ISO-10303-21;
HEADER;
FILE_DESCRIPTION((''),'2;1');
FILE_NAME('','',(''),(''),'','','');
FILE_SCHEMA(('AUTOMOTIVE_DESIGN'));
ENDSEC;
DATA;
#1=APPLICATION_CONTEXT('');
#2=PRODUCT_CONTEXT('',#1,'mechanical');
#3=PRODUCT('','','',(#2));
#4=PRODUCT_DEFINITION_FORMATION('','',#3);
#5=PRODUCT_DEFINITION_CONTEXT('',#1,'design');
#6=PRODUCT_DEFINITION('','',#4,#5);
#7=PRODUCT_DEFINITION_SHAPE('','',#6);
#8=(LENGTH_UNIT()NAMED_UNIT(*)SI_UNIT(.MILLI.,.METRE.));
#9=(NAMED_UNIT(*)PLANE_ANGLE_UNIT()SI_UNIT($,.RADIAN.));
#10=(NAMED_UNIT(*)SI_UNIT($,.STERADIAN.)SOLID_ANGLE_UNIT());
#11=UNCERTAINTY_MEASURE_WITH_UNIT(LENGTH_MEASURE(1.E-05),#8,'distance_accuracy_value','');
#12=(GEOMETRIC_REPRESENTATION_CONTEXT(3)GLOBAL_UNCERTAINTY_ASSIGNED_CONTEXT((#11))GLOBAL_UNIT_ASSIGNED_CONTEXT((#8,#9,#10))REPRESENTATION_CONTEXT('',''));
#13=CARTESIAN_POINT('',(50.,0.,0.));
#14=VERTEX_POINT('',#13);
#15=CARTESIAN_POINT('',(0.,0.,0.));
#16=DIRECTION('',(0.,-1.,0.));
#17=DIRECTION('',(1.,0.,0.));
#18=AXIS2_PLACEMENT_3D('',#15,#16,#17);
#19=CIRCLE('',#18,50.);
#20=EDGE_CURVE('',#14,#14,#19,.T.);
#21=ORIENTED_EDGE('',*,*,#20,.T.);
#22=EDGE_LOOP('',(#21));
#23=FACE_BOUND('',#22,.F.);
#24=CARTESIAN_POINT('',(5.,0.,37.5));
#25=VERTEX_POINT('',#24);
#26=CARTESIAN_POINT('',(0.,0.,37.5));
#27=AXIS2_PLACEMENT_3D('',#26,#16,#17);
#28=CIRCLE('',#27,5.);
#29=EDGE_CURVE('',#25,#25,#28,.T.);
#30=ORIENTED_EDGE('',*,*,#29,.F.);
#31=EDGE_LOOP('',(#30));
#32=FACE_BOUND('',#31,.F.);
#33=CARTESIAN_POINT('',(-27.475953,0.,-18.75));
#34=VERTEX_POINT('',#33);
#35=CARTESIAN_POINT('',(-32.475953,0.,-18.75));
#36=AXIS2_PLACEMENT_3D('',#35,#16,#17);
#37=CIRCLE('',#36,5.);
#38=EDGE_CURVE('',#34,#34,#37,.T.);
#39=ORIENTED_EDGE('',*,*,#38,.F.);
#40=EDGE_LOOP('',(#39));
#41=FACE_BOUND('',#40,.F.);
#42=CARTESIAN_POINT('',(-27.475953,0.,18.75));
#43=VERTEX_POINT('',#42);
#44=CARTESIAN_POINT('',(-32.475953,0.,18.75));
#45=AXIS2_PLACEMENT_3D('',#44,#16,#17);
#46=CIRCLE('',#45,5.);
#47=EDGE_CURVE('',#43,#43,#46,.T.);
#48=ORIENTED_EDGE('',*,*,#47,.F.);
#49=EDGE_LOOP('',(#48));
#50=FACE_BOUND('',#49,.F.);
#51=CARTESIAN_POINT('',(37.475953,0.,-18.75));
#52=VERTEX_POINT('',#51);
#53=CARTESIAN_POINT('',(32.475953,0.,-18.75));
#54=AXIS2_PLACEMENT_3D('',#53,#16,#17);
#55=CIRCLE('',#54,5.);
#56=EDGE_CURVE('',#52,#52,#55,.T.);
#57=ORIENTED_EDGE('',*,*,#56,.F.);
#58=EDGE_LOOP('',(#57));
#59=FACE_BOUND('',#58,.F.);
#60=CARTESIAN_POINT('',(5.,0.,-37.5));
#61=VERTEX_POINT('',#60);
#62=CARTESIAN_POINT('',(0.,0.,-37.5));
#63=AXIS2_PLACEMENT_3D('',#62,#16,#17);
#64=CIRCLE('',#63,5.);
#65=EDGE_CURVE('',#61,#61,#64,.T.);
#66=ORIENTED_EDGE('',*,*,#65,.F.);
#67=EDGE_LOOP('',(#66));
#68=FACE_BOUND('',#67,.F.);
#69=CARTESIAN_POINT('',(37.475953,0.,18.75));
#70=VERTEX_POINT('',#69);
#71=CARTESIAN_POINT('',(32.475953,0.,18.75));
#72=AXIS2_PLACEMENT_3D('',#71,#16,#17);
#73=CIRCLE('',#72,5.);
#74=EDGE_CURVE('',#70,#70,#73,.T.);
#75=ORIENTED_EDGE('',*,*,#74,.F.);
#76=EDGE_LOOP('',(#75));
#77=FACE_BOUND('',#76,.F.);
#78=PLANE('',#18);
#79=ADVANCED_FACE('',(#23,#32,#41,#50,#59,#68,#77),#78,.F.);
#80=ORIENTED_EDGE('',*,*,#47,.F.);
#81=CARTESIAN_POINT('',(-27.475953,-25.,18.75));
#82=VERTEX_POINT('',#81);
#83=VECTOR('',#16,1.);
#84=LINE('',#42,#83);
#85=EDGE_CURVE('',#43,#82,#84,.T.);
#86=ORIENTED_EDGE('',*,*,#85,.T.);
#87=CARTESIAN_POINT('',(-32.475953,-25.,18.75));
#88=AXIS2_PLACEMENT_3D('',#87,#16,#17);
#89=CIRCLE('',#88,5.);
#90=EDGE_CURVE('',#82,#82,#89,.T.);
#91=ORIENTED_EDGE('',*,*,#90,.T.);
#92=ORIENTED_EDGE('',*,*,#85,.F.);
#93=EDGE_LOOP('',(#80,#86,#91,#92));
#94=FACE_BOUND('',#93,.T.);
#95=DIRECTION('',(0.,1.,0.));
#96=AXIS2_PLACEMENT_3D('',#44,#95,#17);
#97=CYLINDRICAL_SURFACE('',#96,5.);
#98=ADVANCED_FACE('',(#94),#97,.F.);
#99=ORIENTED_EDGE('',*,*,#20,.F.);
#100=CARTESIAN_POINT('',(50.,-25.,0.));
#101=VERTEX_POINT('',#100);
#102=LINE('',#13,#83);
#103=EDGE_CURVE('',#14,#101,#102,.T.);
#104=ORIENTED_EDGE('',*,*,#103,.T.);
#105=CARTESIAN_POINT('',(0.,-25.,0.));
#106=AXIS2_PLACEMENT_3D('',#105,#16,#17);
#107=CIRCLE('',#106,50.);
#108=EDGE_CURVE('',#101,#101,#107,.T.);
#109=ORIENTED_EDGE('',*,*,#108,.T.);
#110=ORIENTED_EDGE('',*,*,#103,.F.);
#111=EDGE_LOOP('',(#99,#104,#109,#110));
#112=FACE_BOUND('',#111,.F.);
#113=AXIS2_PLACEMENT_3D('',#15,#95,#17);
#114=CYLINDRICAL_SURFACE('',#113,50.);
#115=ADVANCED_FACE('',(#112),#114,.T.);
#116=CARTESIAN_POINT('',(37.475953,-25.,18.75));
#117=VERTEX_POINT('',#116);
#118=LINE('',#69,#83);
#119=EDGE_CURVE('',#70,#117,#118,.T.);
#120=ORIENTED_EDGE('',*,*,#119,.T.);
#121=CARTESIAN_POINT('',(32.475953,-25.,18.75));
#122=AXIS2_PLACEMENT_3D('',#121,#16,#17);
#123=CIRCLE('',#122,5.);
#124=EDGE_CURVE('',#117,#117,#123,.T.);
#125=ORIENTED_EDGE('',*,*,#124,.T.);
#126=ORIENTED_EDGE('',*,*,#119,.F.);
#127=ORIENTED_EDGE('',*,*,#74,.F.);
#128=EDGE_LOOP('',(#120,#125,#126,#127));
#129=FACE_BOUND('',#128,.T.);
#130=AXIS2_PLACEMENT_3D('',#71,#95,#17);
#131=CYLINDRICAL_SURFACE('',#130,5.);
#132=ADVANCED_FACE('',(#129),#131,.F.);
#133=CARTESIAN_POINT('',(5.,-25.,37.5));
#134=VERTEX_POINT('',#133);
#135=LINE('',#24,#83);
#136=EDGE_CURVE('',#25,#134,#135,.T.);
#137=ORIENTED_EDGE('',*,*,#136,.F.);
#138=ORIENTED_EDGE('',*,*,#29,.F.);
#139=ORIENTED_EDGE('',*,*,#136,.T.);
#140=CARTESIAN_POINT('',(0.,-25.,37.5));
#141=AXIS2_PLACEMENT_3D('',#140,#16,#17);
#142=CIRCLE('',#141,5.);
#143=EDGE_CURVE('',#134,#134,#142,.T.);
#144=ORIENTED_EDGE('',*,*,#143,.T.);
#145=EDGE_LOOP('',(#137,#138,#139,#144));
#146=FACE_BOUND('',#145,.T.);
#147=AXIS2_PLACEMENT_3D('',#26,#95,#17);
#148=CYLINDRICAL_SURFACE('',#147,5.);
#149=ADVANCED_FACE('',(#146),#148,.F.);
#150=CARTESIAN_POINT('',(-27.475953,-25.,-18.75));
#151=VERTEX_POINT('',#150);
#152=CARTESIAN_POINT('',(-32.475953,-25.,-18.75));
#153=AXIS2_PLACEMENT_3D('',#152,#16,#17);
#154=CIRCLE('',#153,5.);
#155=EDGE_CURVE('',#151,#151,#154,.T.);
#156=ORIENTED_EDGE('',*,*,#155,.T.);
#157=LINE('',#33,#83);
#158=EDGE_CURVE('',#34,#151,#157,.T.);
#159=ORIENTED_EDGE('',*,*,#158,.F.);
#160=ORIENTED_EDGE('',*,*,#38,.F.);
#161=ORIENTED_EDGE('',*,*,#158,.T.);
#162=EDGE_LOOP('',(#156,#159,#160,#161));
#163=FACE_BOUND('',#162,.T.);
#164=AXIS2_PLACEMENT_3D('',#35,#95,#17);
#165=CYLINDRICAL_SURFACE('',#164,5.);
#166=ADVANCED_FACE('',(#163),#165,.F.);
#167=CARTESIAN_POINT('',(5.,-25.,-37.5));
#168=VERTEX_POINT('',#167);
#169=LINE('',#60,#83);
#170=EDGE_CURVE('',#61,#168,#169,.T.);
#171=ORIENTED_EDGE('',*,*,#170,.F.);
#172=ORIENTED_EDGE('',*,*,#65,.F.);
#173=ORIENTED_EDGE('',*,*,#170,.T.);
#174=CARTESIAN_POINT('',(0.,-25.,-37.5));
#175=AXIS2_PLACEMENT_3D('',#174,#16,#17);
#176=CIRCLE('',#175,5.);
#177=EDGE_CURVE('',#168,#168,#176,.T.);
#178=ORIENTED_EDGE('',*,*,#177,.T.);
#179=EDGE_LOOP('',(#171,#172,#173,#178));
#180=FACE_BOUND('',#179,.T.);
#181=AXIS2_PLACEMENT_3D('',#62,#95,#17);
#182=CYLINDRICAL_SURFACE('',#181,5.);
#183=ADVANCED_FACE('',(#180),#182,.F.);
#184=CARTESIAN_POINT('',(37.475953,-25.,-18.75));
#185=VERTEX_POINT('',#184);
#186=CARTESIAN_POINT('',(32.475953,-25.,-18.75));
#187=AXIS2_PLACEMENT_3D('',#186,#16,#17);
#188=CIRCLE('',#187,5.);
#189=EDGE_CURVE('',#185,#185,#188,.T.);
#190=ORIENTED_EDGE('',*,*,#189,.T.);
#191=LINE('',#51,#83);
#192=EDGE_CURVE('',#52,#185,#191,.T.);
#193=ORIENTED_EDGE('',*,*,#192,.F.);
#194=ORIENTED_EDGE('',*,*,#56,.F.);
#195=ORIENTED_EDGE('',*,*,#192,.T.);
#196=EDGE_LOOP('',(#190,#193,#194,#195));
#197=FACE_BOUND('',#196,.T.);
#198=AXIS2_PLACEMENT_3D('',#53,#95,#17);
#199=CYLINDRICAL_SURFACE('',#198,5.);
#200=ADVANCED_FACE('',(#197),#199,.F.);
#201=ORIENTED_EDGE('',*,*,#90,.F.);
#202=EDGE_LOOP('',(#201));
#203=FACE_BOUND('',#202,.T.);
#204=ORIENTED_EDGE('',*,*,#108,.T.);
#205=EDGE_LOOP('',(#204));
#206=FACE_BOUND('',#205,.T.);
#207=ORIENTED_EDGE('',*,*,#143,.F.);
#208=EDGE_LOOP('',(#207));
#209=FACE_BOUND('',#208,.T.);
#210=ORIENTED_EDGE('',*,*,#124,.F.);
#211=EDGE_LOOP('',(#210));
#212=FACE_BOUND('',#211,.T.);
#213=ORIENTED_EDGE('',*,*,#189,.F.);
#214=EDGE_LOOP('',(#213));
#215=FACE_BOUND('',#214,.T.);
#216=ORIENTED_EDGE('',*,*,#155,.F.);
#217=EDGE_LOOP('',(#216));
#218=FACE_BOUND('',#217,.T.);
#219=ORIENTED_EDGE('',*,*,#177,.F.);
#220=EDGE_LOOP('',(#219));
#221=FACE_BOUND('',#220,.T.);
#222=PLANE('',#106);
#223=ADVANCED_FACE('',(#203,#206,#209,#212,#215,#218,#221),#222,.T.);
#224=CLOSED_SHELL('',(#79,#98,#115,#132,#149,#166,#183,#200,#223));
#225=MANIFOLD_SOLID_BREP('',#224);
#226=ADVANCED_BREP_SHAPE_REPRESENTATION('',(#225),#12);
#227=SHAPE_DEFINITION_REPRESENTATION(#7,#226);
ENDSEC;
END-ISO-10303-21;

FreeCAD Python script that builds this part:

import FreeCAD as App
import Part
import Sketcher

doc = App.newDocument("Part")
body = doc.addObject("PartDesign::Body", "Body")

# Sketch on XZ plane
sketch1 = body.newObject("Sketcher::SketchObject", "Sketch")
sketch1.AttachmentSupport = (doc.getObject("XZ_Plane"), [""])
sketch1.MapMode = "FlatFace"
sketch1.addGeometry(Part.Circle(App.Vector(0, 0, 0), App.Vector(0, 0, 1), 50), False)
sketch1.addGeometry(Part.Circle(App.Vector(-32, -19, 0), App.Vector(0, 0, 1), 5), False)
sketch1.addGeometry(Part.Circle(App.Vector(0, -38, 0), App.Vector(0, 0, 1), 5), False)
sketch1.addGeometry(Part.Circle(App.Vector(32, -19, 0), App.Vector(0, 0, 1), 5), False)
sketch1.addGeometry(Part.Circle(App.Vector(-32, 19, 0), App.Vector(0, 0, 1), 5), False)
sketch1.addGeometry(Part.Circle(App.Vector(32, 19, 0), App.Vector(0, 0, 1), 5), False)
sketch1.addGeometry(Part.Circle(App.Vector(0, 38, 0), App.Vector(0, 0, 1), 5), False)
sketch1.addConstraint(Sketcher.Constraint("Coincident", 0, 3, -1, 1))
sketch1.addConstraint(Sketcher.Constraint("Equal", 1, 2))
sketch1.addConstraint(Sketcher.Constraint("Equal", 2, 3))
sketch1.addConstraint(Sketcher.Constraint("Equal", 3, 4))
sketch1.addConstraint(Sketcher.Constraint("Equal", 4, 5))
sketch1.addConstraint(Sketcher.Constraint("Equal", 5, 6))
sketch1.addConstraint(Sketcher.Constraint("Symmetric", 3, 3, 4, 3, -1, 1))
sketch1.addConstraint(Sketcher.Constraint("Symmetric", 1, 3, 5, 3, -1, 1))
sketch1.addConstraint(Sketcher.Constraint("Symmetric", 2, 3, 6, 3, -1, 1))
sketch1.addConstraint(Sketcher.Constraint("Symmetric", 1, 3, 3, 3, -2))
sketch1.addConstraint(Sketcher.Constraint("PointOnObject", 2, 3, -2))
sketch1.addConstraint(Sketcher.Constraint("Diameter", 0, 100.0))
sketch1.addConstraint(Sketcher.Constraint("Diameter", 1, 10.0))
sketch1.addConstraint(Sketcher.Constraint("DistanceY", 2, 3, -1, 1, 37.5))
sketch1.addConstraint(Sketcher.Constraint("DistanceY", 1, 3, 4, 3, 37.5))
sketch1.addConstraint(Sketcher.Constraint("DistanceX", 1, 3, -1, 1, 32.475953))
pad1 = body.newObject("PartDesign::Pad", "Pad")
pad1.Profile = sketch1
pad1.Length = 25

doc.recompute()
